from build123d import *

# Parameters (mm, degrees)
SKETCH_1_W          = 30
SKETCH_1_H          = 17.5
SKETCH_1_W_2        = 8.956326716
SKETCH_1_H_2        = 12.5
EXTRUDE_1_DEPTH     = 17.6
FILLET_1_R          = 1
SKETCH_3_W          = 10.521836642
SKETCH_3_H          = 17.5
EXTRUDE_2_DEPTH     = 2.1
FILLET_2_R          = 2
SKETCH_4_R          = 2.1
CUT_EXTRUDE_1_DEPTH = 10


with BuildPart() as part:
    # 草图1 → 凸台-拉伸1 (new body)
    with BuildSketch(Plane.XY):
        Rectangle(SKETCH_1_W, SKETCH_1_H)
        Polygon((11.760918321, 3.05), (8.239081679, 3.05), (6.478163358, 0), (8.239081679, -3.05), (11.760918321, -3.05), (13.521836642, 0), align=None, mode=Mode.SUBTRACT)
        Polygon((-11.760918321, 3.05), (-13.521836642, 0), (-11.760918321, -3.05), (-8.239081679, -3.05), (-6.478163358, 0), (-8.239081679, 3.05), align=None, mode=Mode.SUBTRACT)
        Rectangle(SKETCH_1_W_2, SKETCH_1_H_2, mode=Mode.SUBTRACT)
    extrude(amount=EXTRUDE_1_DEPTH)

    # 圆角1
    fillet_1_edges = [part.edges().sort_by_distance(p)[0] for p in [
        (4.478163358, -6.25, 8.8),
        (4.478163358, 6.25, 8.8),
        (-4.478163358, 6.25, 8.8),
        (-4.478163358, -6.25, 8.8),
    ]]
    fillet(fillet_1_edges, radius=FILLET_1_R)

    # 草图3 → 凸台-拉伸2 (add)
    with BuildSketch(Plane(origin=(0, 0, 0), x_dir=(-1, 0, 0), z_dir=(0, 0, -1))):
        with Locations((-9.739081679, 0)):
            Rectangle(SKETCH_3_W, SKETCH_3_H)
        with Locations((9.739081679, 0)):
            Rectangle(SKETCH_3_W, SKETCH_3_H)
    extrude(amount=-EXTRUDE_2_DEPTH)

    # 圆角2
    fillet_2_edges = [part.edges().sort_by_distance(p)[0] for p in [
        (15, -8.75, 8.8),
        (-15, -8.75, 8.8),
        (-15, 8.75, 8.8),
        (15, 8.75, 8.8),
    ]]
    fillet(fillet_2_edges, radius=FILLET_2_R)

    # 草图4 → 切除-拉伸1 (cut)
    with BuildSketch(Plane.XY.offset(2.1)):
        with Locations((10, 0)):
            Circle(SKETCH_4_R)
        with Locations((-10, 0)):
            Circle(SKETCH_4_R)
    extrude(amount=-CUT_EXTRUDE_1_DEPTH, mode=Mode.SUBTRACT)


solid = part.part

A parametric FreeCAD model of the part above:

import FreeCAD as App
import Part
import Sketcher

V = App.Vector
Q = App.Units.Quantity


def edges_at(feature, points):
    """Names of the edges that pass closest to the given points."""
    edges = feature.Shape.Edges
    near = lambda p: min(range(len(edges)), key=lambda i: edges[i].distToShape(Part.Vertex(*p))[0])
    return sorted({f"Edge{near(p) + 1}" for p in points})

doc = App.newDocument("Part")
body = doc.addObject("PartDesign::Body", "Body")

# Sketch on XY plane
sketch1 = doc.addObject("Sketcher::SketchObject", "Sketch")
body.addObject(sketch1)
sketch1.AttachmentSupport = (doc.XY_Plane, [""])
sketch1.MapMode = "FlatFace"
sketch1.addGeometry([
    Part.LineSegment(V(-15, 8.75, 0), V(-15, -8.75, 0)),  # 0
    Part.LineSegment(V(-15, -8.75, 0), V(15, -8.75, 0)),  # 1
    Part.LineSegment(V(15, -8.75, 0), V(15, 8.75, 0)),  # 2
    Part.LineSegment(V(15, 8.75, 0), V(-15, 8.75, 0)),  # 3
    Part.LineSegment(V(-13.521837, 0, 0), V(-11.760918, 3.05, 0)),  # 4
    Part.LineSegment(V(-11.760918, 3.05, 0), V(-8.239082, 3.05, 0)),  # 5
    Part.LineSegment(V(-8.239082, 3.05, 0), V(-6.478163, 0, 0)),  # 6
    Part.LineSegment(V(-6.478163, 0, 0), V(-8.239082, -3.05, 0)),  # 7
    Part.LineSegment(V(-8.239082, -3.05, 0), V(-11.760918, -3.05, 0)),  # 8
    Part.LineSegment(V(-11.760918, -3.05, 0), V(-13.521837, 0, 0)),  # 9
    Part.LineSegment(V(4.478163, -6.25, 0), V(-4.478163, -6.25, 0)),  # 10
    Part.LineSegment(V(-4.478163, -6.25, 0), V(-4.478163, 6.25, 0)),  # 11
    Part.LineSegment(V(-4.478163, 6.25, 0), V(4.478163, 6.25, 0)),  # 12
    Part.LineSegment(V(4.478163, 6.25, 0), V(4.478163, -6.25, 0)),  # 13
    Part.LineSegment(V(8.239082, 3.05, 0), V(11.760918, 3.05, 0)),  # 14
    Part.LineSegment(V(11.760918, 3.05, 0), V(13.521837, 0, 0)),  # 15
    Part.LineSegment(V(13.521837, 0, 0), V(11.760918, -3.05, 0)),  # 16
    Part.LineSegment(V(11.760918, -3.05, 0), V(8.239082, -3.05, 0)),  # 17
    Part.LineSegment(V(8.239082, -3.05, 0), V(6.478163, 0, 0)),  # 18
    Part.LineSegment(V(6.478163, 0, 0), V(8.239082, 3.05, 0)),  # 19
], False)
sketch1.addConstraint([
    Sketcher.Constraint("Coincident", 0, 2, 1, 1),
    Sketcher.Constraint("Coincident", 1, 2, 2, 1),
    Sketcher.Constraint("Coincident", 2, 2, 3, 1),
    Sketcher.Constraint("Coincident", 3, 2, 0, 1),
    Sketcher.Constraint("Coincident", 4, 2, 5, 1),
    Sketcher.Constraint("Coincident", 5, 2, 6, 1),
    Sketcher.Constraint("Coincident", 6, 2, 7, 1),
    Sketcher.Constraint("Coincident", 7, 2, 8, 1),
    Sketcher.Constraint("Coincident", 8, 2, 9, 1),
    Sketcher.Constraint("Coincident", 9, 2, 4, 1),
    Sketcher.Constraint("Coincident", 10, 2, 11, 1),
    Sketcher.Constraint("Coincident", 11, 2, 12, 1),
    Sketcher.Constraint("Coincident", 12, 2, 13, 1),
    Sketcher.Constraint("Coincident", 13, 2, 10, 1),
    Sketcher.Constraint("Coincident", 14, 2, 15, 1),
    Sketcher.Constraint("Coincident", 15, 2, 16, 1),
    Sketcher.Constraint("Coincident", 16, 2, 17, 1),
    Sketcher.Constraint("Coincident", 17, 2, 18, 1),
    Sketcher.Constraint("Coincident", 18, 2, 19, 1),
    Sketcher.Constraint("Coincident", 19, 2, 14, 1),
    Sketcher.Constraint("Vertical", 0),
    Sketcher.Constraint("Horizontal", 1),
    Sketcher.Constraint("Vertical", 2),
    Sketcher.Constraint("Horizontal", 3),
    Sketcher.Constraint("Horizontal", 5),
    Sketcher.Constraint("Horizontal", 8),
    Sketcher.Constraint("Horizontal", 10),
    Sketcher.Constraint("Vertical", 11),
    Sketcher.Constraint("Horizontal", 12),
    Sketcher.Constraint("Vertical", 13),
    Sketcher.Constraint("Horizontal", 14),
    Sketcher.Constraint("Horizontal", 17),
    Sketcher.Constraint("Symmetric", 0, 2, 2, 2, -1, 1),
    Sketcher.Constraint("Symmetric", 10, 2, 12, 2, -1, 1),
    Sketcher.Constraint("Symmetric", 8, 2, 14, 2, -1, 1),
    Sketcher.Constraint("Symmetric", 9, 2, 15, 2, -1, 1),
    Sketcher.Constraint("Symmetric", 4, 2, 16, 2, -1, 1),
    Sketcher.Constraint("Symmetric", 6, 2, 18, 2, -1, 1),
    Sketcher.Constraint("Symmetric", 4, 2, 14, 2, -2),
    Sketcher.Constraint("PointOnObject", 6, 2, -1),
    Sketcher.Constraint("PointOnObject", 9, 2, -1),
    Sketcher.Constraint("Parallel", 4, 7),
    Sketcher.Constraint("Parallel", 6, 9),
    Sketcher.Constraint("Parallel", 15, 18),
    Sketcher.Constraint("Parallel", 16, 19),
    Sketcher.Constraint("DistanceX", 1, 1, 1, 2, 30.0),
    Sketcher.Constraint("Angle", 4, Q("60 deg")),
    Sketcher.Constraint("DistanceY", 0, 2, 0, 1, 17.5),
    Sketcher.Constraint("DistanceY", 11, 1, 11, 2, 12.5),
    Sketcher.Constraint("DistanceX", 6, 2, 10, 2, 2.0),
    Sketcher.Constraint("DistanceY", 4, 2, 3, 2, 5.7),
    Sketcher.Constraint("DistanceX", 5, 1, 5, 2, 3.521837),
    Sketcher.Constraint("DistanceX", 10, 2, 10, 1, 8.956327),
])
pad1 = doc.addObject("PartDesign::Pad", "Pad")
body.addObject(pad1)
pad1.Profile = sketch1
pad1.Length = 17.6
doc.recompute()

fillet = doc.addObject("PartDesign::Fillet", "Fillet")
body.addObject(fillet)
fillet.Base = (pad1, edges_at(pad1, [
    (4.478, -6.25, 8.8),
    (4.478, 6.25, 8.8),
    (-4.478, 6.25, 8.8),
    (-4.478, -6.25, 8.8),
]))
fillet.Radius = 1

# Sketch on XY plane
sketch2 = doc.addObject("Sketcher::SketchObject", "Sketch001")
body.addObject(sketch2)
sketch2.AttachmentSupport = (doc.XY_Plane, [""])
sketch2.MapMode = "FlatFace"
sketch2.addGeometry([
    Part.LineSegment(V(15, 8.75, 0), V(15, -8.75, 0)),  # 0
    Part.LineSegment(V(15, -8.75, 0), V(4.478163, -8.75, 0)),  # 1
    Part.LineSegment(V(4.478163, -8.75, 0), V(4.478163, 8.75, 0)),  # 2
    Part.LineSegment(V(4.478163, 8.75, 0), V(15, 8.75, 0)),  # 3
    Part.LineSegment(V(-4.478163, 8.75, 0), V(-4.478163, -8.75, 0)),  # 4
    Part.LineSegment(V(-4.478163, -8.75, 0), V(-15, -8.75, 0)),  # 5
    Part.LineSegment(V(-15, -8.75, 0), V(-15, 8.75, 0)),  # 6
    Part.LineSegment(V(-15, 8.75, 0), V(-4.478163, 8.75, 0)),  # 7
], False)
sketch2.addConstraint([
    Sketcher.Constraint("Coincident", 0, 2, 1, 1),
    Sketcher.Constraint("Coincident", 1, 2, 2, 1),
    Sketcher.Constraint("Coincident", 2, 2, 3, 1),
    Sketcher.Constraint("Coincident", 3, 2, 0, 1),
    Sketcher.Constraint("Coincident", 4, 2, 5, 1),
    Sketcher.Constraint("Coincident", 5, 2, 6, 1),
    Sketcher.Constraint("Coincident", 6, 2, 7, 1),
    Sketcher.Constraint("Coincident", 7, 2, 4, 1),
    Sketcher.Constraint("Vertical", 0),
    Sketcher.Constraint("Horizontal", 1),
    Sketcher.Constraint("Vertical", 2),
    Sketcher.Constraint("Horizontal", 3),
    Sketcher.Constraint("Vertical", 4),
    Sketcher.Constraint("Horizontal", 5),
    Sketcher.Constraint("Vertical", 6),
    Sketcher.Constraint("Horizontal", 7),
    Sketcher.Constraint("Symmetric", 2, 2, 4, 2, -1, 1),
    Sketcher.Constraint("Symmetric", 0, 2, 6, 2, -1, 1),
    Sketcher.Constraint("Horizontal", 1, 2, 4, 2),
    Sketcher.Constraint("DistanceY", 0, 2, 0, 1, 17.5),
    Sketcher.Constraint("DistanceX", -1, 1, 0, 2, 15.0),
    Sketcher.Constraint("DistanceX", 1, 2, 1, 1, 10.521837),
])
pad2 = doc.addObject("PartDesign::Pad", "Pad001")
body.addObject(pad2)
pad2.Profile = sketch2
pad2.Length = 2.1
doc.recompute()

fillet2 = doc.addObject("PartDesign::Fillet", "Fillet001")
body.addObject(fillet2)
fillet2.Base = (pad2, edges_at(pad2, [
    (15, -8.75, 8.8),
    (-15, -8.75, 8.8),
    (-15, 8.75, 8.8),
    (15, 8.75, 8.8),
]))
fillet2.Radius = 2

# Sketch on XY plane
sketch3 = doc.addObject("Sketcher::SketchObject", "Sketch002")
body.addObject(sketch3)
sketch3.AttachmentSupport = (doc.XY_Plane, [""])
sketch3.MapMode = "FlatFace"
sketch3.AttachmentOffset = App.Placement(V(0, 0, 2.1), App.Rotation())
sketch3.addGeometry([
    Part.Circle(V(10, 0, 0), V(0, 0, 1), 2.1),
    Part.Circle(V(-10, 0, 0), V(0, 0, 1), 2.1),
], False)
sketch3.addConstraint([
    Sketcher.Constraint("Equal", 0, 1),
    Sketcher.Constraint("Symmetric", 0, 3, 1, 3, -1, 1),
    Sketcher.Constraint("PointOnObject", 0, 3, -1),
    Sketcher.Constraint("Diameter", 0, 4.2),
    Sketcher.Constraint("DistanceX", -1, 1, 0, 3, 10.0),
])
pocket1 = doc.addObject("PartDesign::Pocket", "Pocket")
body.addObject(pocket1)
pocket1.Profile = sketch3
pocket1.Length = 10

doc.recompute()
